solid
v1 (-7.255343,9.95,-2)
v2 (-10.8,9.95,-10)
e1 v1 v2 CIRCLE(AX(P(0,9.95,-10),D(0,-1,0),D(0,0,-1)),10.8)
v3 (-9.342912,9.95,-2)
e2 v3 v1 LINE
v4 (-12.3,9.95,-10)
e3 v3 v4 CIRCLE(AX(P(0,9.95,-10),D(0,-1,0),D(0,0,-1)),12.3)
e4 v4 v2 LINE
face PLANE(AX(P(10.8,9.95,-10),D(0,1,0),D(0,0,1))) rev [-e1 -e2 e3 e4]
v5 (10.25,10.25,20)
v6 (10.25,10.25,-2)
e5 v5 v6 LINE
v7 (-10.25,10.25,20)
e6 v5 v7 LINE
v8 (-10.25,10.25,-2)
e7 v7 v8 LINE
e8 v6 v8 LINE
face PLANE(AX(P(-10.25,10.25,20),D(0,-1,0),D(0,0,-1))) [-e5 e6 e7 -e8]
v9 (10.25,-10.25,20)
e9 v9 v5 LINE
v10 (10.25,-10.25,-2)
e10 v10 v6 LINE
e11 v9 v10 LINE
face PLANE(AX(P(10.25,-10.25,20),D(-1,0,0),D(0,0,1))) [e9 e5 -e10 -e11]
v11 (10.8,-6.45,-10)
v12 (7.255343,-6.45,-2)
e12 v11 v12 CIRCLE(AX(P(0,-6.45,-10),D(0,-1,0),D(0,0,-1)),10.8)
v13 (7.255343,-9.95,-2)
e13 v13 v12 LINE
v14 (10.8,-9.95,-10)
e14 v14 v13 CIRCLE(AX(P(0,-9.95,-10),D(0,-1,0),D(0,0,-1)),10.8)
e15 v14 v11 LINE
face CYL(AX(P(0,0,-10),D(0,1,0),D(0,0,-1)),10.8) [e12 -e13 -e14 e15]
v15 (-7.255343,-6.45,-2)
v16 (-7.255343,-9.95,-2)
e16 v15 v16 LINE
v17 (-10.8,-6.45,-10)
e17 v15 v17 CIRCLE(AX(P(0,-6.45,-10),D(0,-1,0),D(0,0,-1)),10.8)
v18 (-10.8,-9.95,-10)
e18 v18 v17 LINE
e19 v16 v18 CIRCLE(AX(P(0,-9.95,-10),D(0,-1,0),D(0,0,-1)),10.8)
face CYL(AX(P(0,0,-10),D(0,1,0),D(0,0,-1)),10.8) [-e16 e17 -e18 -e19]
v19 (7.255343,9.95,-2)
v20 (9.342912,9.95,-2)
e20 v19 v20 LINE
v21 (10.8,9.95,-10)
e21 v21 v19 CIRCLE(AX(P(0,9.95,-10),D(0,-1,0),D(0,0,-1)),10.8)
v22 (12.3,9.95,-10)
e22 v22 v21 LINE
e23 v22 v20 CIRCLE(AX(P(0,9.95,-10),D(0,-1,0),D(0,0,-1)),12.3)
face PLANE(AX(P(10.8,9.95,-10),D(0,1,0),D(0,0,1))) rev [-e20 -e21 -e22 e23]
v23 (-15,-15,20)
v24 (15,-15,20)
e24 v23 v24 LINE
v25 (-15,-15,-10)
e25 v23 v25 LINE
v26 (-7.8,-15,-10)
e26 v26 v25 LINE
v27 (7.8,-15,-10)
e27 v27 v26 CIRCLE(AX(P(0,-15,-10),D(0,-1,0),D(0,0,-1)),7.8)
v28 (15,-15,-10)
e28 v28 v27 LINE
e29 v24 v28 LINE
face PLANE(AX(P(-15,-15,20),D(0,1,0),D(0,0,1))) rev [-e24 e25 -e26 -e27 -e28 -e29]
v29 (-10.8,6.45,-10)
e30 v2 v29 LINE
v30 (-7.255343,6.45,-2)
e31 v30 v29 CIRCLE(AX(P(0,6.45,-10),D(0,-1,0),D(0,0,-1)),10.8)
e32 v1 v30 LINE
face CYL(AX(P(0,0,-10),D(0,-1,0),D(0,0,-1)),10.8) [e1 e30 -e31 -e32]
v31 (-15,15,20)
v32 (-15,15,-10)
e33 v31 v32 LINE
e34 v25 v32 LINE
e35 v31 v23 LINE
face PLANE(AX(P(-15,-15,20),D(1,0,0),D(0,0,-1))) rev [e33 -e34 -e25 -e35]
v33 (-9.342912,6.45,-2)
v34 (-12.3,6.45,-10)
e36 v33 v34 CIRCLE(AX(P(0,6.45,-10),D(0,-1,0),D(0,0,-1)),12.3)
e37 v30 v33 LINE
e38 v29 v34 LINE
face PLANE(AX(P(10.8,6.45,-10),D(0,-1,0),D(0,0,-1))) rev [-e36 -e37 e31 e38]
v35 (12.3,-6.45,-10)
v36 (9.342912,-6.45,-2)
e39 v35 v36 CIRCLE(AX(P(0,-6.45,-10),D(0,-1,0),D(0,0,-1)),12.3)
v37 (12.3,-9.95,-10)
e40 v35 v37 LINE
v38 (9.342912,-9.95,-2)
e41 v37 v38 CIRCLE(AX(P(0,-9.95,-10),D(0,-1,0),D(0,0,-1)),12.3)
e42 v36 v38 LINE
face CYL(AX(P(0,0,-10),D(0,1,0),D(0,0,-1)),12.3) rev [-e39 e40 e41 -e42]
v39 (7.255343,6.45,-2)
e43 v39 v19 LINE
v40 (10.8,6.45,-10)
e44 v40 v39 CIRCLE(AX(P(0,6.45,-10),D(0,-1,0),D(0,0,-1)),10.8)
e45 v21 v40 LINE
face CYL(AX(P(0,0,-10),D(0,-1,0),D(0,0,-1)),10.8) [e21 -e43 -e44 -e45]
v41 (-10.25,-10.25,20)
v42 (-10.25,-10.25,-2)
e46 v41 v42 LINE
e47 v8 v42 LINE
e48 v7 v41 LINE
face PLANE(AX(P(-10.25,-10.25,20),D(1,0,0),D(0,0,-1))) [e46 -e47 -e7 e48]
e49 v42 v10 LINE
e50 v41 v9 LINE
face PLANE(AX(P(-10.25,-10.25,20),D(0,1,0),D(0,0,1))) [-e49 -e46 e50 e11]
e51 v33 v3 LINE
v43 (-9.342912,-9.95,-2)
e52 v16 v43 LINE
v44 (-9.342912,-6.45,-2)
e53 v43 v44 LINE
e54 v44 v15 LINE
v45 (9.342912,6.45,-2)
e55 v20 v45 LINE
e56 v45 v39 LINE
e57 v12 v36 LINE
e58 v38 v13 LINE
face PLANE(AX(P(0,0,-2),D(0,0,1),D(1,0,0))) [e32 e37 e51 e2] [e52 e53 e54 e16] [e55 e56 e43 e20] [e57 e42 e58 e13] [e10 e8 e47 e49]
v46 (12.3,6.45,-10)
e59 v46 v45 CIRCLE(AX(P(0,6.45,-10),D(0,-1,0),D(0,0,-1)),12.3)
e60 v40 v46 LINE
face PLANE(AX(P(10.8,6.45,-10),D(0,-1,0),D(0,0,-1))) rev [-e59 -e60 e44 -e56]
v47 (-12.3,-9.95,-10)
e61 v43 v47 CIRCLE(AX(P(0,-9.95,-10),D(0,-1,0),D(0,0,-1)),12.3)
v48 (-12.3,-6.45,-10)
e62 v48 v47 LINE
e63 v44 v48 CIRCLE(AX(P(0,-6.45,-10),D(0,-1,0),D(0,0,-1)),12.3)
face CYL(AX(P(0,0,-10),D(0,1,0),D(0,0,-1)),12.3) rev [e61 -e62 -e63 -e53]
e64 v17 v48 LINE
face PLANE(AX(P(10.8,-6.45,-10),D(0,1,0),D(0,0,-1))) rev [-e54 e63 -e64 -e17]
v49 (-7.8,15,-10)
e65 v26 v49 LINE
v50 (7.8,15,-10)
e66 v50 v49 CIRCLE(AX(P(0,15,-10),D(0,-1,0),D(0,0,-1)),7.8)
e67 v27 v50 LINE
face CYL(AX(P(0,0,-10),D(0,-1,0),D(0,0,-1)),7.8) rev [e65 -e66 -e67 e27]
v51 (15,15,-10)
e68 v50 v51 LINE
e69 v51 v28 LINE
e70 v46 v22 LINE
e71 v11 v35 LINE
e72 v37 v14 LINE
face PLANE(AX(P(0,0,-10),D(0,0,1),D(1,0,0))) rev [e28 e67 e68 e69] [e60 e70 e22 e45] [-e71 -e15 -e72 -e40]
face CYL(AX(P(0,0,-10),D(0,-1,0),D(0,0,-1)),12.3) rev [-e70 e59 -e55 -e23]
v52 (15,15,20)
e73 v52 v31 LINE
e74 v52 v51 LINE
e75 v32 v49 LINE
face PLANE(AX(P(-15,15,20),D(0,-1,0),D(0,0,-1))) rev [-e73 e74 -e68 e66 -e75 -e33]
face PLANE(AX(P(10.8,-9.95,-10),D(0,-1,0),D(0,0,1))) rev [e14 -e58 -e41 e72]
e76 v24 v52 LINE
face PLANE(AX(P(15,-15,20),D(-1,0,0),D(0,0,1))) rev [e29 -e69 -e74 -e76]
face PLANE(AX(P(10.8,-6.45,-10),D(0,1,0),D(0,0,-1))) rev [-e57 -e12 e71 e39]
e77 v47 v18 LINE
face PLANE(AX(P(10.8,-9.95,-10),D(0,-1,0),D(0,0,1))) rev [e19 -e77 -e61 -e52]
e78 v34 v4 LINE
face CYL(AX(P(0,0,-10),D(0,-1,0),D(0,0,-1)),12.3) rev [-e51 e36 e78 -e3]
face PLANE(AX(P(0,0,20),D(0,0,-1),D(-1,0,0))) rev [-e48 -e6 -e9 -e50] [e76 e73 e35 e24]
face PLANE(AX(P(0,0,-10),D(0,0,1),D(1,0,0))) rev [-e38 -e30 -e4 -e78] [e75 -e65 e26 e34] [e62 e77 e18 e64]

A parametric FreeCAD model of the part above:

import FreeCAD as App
import Part
import Sketcher

V = App.Vector
Q = App.Units.Quantity

doc = App.newDocument("Part")
body = doc.addObject("PartDesign::Body", "Body")

# Sketch on XY plane
sketch1 = body.newObject("Sketcher::SketchObject", "Sketch")
sketch1.AttachmentSupport = (doc.getObject("XY_Plane"), [""])
sketch1.MapMode = "FlatFace"
sketch1.addGeometry(Part.LineSegment(V(-15, 15, 0), V(-15, -15, 0)), False)
sketch1.addGeometry(Part.LineSegment(V(-15, -15, 0), V(15, -15, 0)), False)
sketch1.addGeometry(Part.LineSegment(V(15, -15, 0), V(15, 15, 0)), False)
sketch1.addGeometry(Part.LineSegment(V(15, 15, 0), V(-15, 15, 0)), False)
sketch1.addGeometry(Part.LineSegment(V(10, -10, 0), V(-10, -10, 0)), False)
sketch1.addGeometry(Part.LineSegment(V(-10, -10, 0), V(-10, 10, 0)), False)
sketch1.addGeometry(Part.LineSegment(V(-10, 10, 0), V(10, 10, 0)), False)
sketch1.addGeometry(Part.LineSegment(V(10, 10, 0), V(10, -10, 0)), False)
sketch1.addConstraint(Sketcher.Constraint("Coincident", 0, 2, 1, 1))
sketch1.addConstraint(Sketcher.Constraint("Coincident", 1, 2, 2, 1))
sketch1.addConstraint(Sketcher.Constraint("Coincident", 2, 2, 3, 1))
sketch1.addConstraint(Sketcher.Constraint("Coincident", 3, 2, 0, 1))
sketch1.addConstraint(Sketcher.Constraint("Coincident", 4, 2, 5, 1))
sketch1.addConstraint(Sketcher.Constraint("Coincident", 5, 2, 6, 1))
sketch1.addConstraint(Sketcher.Constraint("Coincident", 6, 2, 7, 1))
sketch1.addConstraint(Sketcher.Constraint("Coincident", 7, 2, 4, 1))
sketch1.addConstraint(Sketcher.Constraint("Vertical", 0))
sketch1.addConstraint(Sketcher.Constraint("Horizontal", 1))
sketch1.addConstraint(Sketcher.Constraint("Vertical", 2))
sketch1.addConstraint(Sketcher.Constraint("Horizontal", 3))
sketch1.addConstraint(Sketcher.Constraint("Horizontal", 4))
sketch1.addConstraint(Sketcher.Constraint("Vertical", 5))
sketch1.addConstraint(Sketcher.Constraint("Horizontal", 6))
sketch1.addConstraint(Sketcher.Constraint("Vertical", 7))
sketch1.addConstraint(Sketcher.Constraint("Symmetric", 0, 2, 2, 2, -1, 1))
sketch1.addConstraint(Sketcher.Constraint("Symmetric", 4, 2, 6, 2, -1, 1))
sketch1.addConstraint(Sketcher.Constraint("Equal", 3, 0))
sketch1.addConstraint(Sketcher.Constraint("Equal", 6, 5))
sketch1.addConstraint(Sketcher.Constraint("DistanceX", 1, 1, 1, 2, Q("30 mm")))
sketch1.addConstraint(Sketcher.Constraint("DistanceX", 4, 2, 4, 1, Q("20.5 mm")))
pad1 = body.newObject("PartDesign::Pad", "Pad")
pad1.Profile = sketch1
pad1.Length = 20

# Sketch on XY plane
sketch2 = body.newObject("Sketcher::SketchObject", "Sketch001")
sketch2.AttachmentSupport = (doc.getObject("XY_Plane"), [""])
sketch2.MapMode = "FlatFace"
sketch2.addGeometry(Part.LineSegment(V(15, 15, 0), V(15, -15, 0)), False)
sketch2.addGeometry(Part.LineSegment(V(15, -15, 0), V(-15, -15, 0)), False)
sketch2.addGeometry(Part.LineSegment(V(-15, -15, 0), V(-15, 15, 0)), False)
sketch2.addGeometry(Part.LineSegment(V(-15, 15, 0), V(15, 15, 0)), False)
sketch2.addConstraint(Sketcher.Constraint("Coincident", 0, 2, 1, 1))
sketch2.addConstraint(Sketcher.Constraint("Coincident", 1, 2, 2, 1))
sketch2.addConstraint(Sketcher.Constraint("Coincident", 2, 2, 3, 1))
sketch2.addConstraint(Sketcher.Constraint("Coincident", 3, 2, 0, 1))
sketch2.addConstraint(Sketcher.Constraint("Vertical", 0))
sketch2.addConstraint(Sketcher.Constraint("Horizontal", 1))
sketch2.addConstraint(Sketcher.Constraint("Vertical", 2))
sketch2.addConstraint(Sketcher.Constraint("Horizontal", 3))
sketch2.addConstraint(Sketcher.Constraint("Symmetric", 0, 2, 2, 2, -1, 1))
sketch2.addConstraint(Sketcher.Constraint("Equal", 3, 0))
sketch2.addConstraint(Sketcher.Constraint("DistanceX", 1, 2, 1, 1, Q("30 mm")))
pad2 = body.newObject("PartDesign::Pad", "Pad001")
pad2.Profile = sketch2
pad2.Length = 10
pad2.Reversed = True

# Sketch on XY plane
sketch3 = body.newObject("Sketcher::SketchObject", "Sketch002")
sketch3.AttachmentSupport = (doc.getObject("XY_Plane"), [""])
sketch3.MapMode = "FlatFace"
sketch3.AttachmentOffset = App.Placement(V(0, 0, -10), App.Rotation())
sketch3.addGeometry(Part.LineSegment(V(0, 15, 0), V(0, 0, 0)), False)
sketch3.addGeometry(Part.LineSegment(V(0, 0, 0), V(-7.8, 0, 0)), False)
sketch3.addGeometry(Part.LineSegment(V(-7.8, 0, 0), V(-7.8, 15, 0)), False)
sketch3.addGeometry(Part.LineSegment(V(-7.8, 15, 0), V(0, 15, 0)), False)
sketch3.addGeometry(Part.LineSegment(V(-10.8, 9.9, 0), V(-10.8, 6.5, 0)), False)
sketch3.addGeometry(Part.LineSegment(V(-10.8, 6.5, 0), V(-12.3, 6.5, 0)), False)
sketch3.addGeometry(Part.LineSegment(V(-12.3, 6.5, 0), V(-12.3, 9.9, 0)), False)
sketch3.addGeometry(Part.LineSegment(V(-12.3, 9.9, 0), V(-10.8, 9.9, 0)), False)
sketch3.addConstraint(Sketcher.Constraint("Coincident", 0, 2, 1, 1))
sketch3.addConstraint(Sketcher.Constraint("Coincident", 1, 2, 2, 1))
sketch3.addConstraint(Sketcher.Constraint("Coincident", 2, 2, 3, 1))
sketch3.addConstraint(Sketcher.Constraint("Coincident", 3, 2, 0, 1))
sketch3.addConstraint(Sketcher.Constraint("Coincident", 4, 2, 5, 1))
sketch3.addConstraint(Sketcher.Constraint("Coincident", 5, 2, 6, 1))
sketch3.addConstraint(Sketcher.Constraint("Coincident", 6, 2, 7, 1))
sketch3.addConstraint(Sketcher.Constraint("Coincident", 7, 2, 4, 1))
sketch3.addConstraint(Sketcher.Constraint("Vertical", 0))
sketch3.addConstraint(Sketcher.Constraint("Horizontal", 1))
sketch3.addConstraint(Sketcher.Constraint("Vertical", 2))
sketch3.addConstraint(Sketcher.Constraint("Horizontal", 3))
sketch3.addConstraint(Sketcher.Constraint("Vertical", 4))
sketch3.addConstraint(Sketcher.Constraint("Horizontal", 5))
sketch3.addConstraint(Sketcher.Constraint("Vertical", 6))
sketch3.addConstraint(Sketcher.Constraint("Horizontal", 7))
sketch3.addConstraint(Sketcher.Constraint("Coincident", 0, 2, -1, 1))
sketch3.addConstraint(Sketcher.Constraint("DistanceY", 0, 2, 0, 1, Q("15 mm")))
sketch3.addConstraint(Sketcher.Constraint("DistanceX", 1, 2, 1, 1, Q("7.8 mm")))
sketch3.addConstraint(Sketcher.Constraint("DistanceX", 5, 2, 5, 1, Q("1.5 mm")))
sketch3.addConstraint(Sketcher.Constraint("DistanceY", 4, 2, 4, 1, Q("3.5 mm")))
sketch3.addConstraint(Sketcher.Constraint("DistanceX", 4, 2, 1, 2, Q("3 mm")))
sketch3.addConstraint(Sketcher.Constraint("DistanceY", -1, 1, 4, 2, Q("6.45 mm")))
groove = body.newObject("PartDesign::Groove", "Groove")
groove.Profile = sketch3
groove.ReferenceAxis = (sketch3, ["V_Axis"])
groove.Angle = 180

# Sketch on XY plane
sketch4 = body.newObject("Sketcher::SketchObject", "Sketch003")
sketch4.AttachmentSupport = (doc.getObject("XY_Plane"), [""])
sketch4.MapMode = "FlatFace"
sketch4.addGeometry(Part.LineSegment(V(-7.2, 9.9, 0), V(-7.2, 6.5, 0)), False)
sketch4.addGeometry(Part.LineSegment(V(-7.2, 6.5, 0), V(7.2, 6.5, 0)), False)
sketch4.addGeometry(Part.LineSegment(V(7.2, 6.5, 0), V(7.2, 9.9, 0)), False)
sketch4.addGeometry(Part.LineSegment(V(7.2, 9.9, 0), V(-7.2, 9.9, 0)), False)
sketch4.addConstraint(Sketcher.Constraint("Coincident", 0, 2, 1, 1))
sketch4.addConstraint(Sketcher.Constraint("Coincident", 1, 2, 2, 1))
sketch4.addConstraint(Sketcher.Constraint("Coincident", 2, 2, 3, 1))
sketch4.addConstraint(Sketcher.Constraint("Coincident", 3, 2, 0, 1))
sketch4.addConstraint(Sketcher.Constraint("Vertical", 0))
sketch4.addConstraint(Sketcher.Constraint("Horizontal", 1))
sketch4.addConstraint(Sketcher.Constraint("Vertical", 2))
sketch4.addConstraint(Sketcher.Constraint("Horizontal", 3))
sketch4.addConstraint(Sketcher.Constraint("DistanceY", 0, 2, 0, 1, Q("3.5 mm")))
sketch4.addConstraint(Sketcher.Constraint("DistanceY", -1, 1, 0, 2, Q("6.45 mm")))
sketch4.addConstraint(Sketcher.Constraint("DistanceX", 1, 1, 1, 2, Q("14.323407 mm")))
sketch4.addConstraint(Sketcher.Constraint("DistanceX", 0, 2, -1, 1, Q("7.161704 mm")))
pocket1 = body.newObject("PartDesign::Pocket", "Pocket")
pocket1.Profile = sketch4
pocket1.Length = 1.5
doc.recompute()

mirrored = body.newObject("PartDesign::Mirrored", "Mirrored")
mirrored.Originals = [groove, pocket1]
mirrored.MirrorPlane = (doc.getObject("XZ_Plane"), [""])
body.Tip = mirrored

# Sketch on XY plane
sketch5 = body.newObject("Sketcher::SketchObject", "Sketch004")
sketch5.AttachmentSupport = (doc.getObject("XY_Plane"), [""])
sketch5.MapMode = "FlatFace"
sketch5.addGeometry(Part.LineSegment(V(-10, 10, 0), V(-10, -10, 0)), False)
sketch5.addGeometry(Part.LineSegment(V(-10, -10, 0), V(10, -10, 0)), False)
sketch5.addGeometry(Part.LineSegment(V(10, -10, 0), V(10, 10, 0)), False)
sketch5.addGeometry(Part.LineSegment(V(10, 10, 0), V(-10, 10, 0)), False)
sketch5.addConstraint(Sketcher.Constraint("Coincident", 0, 2, 1, 1))
sketch5.addConstraint(Sketcher.Constraint("Coincident", 1, 2, 2, 1))
sketch5.addConstraint(Sketcher.Constraint("Coincident", 2, 2, 3, 1))
sketch5.addConstraint(Sketcher.Constraint("Coincident", 3, 2, 0, 1))
sketch5.addConstraint(Sketcher.Constraint("Vertical", 0))
sketch5.addConstraint(Sketcher.Constraint("Horizontal", 1))
sketch5.addConstraint(Sketcher.Constraint("Vertical", 2))
sketch5.addConstraint(Sketcher.Constraint("Horizontal", 3))
sketch5.addConstraint(Sketcher.Constraint("Symmetric", 0, 2, 2, 2, -1, 1))
sketch5.addConstraint(Sketcher.Constraint("Equal", 3, 0))
sketch5.addConstraint(Sketcher.Constraint("DistanceX", 1, 1, 1, 2, Q("20.5 mm")))
pocket2 = body.newObject("PartDesign::Pocket", "Pocket001")
pocket2.Profile = sketch5
pocket2.Length = 2

doc.recompute()
